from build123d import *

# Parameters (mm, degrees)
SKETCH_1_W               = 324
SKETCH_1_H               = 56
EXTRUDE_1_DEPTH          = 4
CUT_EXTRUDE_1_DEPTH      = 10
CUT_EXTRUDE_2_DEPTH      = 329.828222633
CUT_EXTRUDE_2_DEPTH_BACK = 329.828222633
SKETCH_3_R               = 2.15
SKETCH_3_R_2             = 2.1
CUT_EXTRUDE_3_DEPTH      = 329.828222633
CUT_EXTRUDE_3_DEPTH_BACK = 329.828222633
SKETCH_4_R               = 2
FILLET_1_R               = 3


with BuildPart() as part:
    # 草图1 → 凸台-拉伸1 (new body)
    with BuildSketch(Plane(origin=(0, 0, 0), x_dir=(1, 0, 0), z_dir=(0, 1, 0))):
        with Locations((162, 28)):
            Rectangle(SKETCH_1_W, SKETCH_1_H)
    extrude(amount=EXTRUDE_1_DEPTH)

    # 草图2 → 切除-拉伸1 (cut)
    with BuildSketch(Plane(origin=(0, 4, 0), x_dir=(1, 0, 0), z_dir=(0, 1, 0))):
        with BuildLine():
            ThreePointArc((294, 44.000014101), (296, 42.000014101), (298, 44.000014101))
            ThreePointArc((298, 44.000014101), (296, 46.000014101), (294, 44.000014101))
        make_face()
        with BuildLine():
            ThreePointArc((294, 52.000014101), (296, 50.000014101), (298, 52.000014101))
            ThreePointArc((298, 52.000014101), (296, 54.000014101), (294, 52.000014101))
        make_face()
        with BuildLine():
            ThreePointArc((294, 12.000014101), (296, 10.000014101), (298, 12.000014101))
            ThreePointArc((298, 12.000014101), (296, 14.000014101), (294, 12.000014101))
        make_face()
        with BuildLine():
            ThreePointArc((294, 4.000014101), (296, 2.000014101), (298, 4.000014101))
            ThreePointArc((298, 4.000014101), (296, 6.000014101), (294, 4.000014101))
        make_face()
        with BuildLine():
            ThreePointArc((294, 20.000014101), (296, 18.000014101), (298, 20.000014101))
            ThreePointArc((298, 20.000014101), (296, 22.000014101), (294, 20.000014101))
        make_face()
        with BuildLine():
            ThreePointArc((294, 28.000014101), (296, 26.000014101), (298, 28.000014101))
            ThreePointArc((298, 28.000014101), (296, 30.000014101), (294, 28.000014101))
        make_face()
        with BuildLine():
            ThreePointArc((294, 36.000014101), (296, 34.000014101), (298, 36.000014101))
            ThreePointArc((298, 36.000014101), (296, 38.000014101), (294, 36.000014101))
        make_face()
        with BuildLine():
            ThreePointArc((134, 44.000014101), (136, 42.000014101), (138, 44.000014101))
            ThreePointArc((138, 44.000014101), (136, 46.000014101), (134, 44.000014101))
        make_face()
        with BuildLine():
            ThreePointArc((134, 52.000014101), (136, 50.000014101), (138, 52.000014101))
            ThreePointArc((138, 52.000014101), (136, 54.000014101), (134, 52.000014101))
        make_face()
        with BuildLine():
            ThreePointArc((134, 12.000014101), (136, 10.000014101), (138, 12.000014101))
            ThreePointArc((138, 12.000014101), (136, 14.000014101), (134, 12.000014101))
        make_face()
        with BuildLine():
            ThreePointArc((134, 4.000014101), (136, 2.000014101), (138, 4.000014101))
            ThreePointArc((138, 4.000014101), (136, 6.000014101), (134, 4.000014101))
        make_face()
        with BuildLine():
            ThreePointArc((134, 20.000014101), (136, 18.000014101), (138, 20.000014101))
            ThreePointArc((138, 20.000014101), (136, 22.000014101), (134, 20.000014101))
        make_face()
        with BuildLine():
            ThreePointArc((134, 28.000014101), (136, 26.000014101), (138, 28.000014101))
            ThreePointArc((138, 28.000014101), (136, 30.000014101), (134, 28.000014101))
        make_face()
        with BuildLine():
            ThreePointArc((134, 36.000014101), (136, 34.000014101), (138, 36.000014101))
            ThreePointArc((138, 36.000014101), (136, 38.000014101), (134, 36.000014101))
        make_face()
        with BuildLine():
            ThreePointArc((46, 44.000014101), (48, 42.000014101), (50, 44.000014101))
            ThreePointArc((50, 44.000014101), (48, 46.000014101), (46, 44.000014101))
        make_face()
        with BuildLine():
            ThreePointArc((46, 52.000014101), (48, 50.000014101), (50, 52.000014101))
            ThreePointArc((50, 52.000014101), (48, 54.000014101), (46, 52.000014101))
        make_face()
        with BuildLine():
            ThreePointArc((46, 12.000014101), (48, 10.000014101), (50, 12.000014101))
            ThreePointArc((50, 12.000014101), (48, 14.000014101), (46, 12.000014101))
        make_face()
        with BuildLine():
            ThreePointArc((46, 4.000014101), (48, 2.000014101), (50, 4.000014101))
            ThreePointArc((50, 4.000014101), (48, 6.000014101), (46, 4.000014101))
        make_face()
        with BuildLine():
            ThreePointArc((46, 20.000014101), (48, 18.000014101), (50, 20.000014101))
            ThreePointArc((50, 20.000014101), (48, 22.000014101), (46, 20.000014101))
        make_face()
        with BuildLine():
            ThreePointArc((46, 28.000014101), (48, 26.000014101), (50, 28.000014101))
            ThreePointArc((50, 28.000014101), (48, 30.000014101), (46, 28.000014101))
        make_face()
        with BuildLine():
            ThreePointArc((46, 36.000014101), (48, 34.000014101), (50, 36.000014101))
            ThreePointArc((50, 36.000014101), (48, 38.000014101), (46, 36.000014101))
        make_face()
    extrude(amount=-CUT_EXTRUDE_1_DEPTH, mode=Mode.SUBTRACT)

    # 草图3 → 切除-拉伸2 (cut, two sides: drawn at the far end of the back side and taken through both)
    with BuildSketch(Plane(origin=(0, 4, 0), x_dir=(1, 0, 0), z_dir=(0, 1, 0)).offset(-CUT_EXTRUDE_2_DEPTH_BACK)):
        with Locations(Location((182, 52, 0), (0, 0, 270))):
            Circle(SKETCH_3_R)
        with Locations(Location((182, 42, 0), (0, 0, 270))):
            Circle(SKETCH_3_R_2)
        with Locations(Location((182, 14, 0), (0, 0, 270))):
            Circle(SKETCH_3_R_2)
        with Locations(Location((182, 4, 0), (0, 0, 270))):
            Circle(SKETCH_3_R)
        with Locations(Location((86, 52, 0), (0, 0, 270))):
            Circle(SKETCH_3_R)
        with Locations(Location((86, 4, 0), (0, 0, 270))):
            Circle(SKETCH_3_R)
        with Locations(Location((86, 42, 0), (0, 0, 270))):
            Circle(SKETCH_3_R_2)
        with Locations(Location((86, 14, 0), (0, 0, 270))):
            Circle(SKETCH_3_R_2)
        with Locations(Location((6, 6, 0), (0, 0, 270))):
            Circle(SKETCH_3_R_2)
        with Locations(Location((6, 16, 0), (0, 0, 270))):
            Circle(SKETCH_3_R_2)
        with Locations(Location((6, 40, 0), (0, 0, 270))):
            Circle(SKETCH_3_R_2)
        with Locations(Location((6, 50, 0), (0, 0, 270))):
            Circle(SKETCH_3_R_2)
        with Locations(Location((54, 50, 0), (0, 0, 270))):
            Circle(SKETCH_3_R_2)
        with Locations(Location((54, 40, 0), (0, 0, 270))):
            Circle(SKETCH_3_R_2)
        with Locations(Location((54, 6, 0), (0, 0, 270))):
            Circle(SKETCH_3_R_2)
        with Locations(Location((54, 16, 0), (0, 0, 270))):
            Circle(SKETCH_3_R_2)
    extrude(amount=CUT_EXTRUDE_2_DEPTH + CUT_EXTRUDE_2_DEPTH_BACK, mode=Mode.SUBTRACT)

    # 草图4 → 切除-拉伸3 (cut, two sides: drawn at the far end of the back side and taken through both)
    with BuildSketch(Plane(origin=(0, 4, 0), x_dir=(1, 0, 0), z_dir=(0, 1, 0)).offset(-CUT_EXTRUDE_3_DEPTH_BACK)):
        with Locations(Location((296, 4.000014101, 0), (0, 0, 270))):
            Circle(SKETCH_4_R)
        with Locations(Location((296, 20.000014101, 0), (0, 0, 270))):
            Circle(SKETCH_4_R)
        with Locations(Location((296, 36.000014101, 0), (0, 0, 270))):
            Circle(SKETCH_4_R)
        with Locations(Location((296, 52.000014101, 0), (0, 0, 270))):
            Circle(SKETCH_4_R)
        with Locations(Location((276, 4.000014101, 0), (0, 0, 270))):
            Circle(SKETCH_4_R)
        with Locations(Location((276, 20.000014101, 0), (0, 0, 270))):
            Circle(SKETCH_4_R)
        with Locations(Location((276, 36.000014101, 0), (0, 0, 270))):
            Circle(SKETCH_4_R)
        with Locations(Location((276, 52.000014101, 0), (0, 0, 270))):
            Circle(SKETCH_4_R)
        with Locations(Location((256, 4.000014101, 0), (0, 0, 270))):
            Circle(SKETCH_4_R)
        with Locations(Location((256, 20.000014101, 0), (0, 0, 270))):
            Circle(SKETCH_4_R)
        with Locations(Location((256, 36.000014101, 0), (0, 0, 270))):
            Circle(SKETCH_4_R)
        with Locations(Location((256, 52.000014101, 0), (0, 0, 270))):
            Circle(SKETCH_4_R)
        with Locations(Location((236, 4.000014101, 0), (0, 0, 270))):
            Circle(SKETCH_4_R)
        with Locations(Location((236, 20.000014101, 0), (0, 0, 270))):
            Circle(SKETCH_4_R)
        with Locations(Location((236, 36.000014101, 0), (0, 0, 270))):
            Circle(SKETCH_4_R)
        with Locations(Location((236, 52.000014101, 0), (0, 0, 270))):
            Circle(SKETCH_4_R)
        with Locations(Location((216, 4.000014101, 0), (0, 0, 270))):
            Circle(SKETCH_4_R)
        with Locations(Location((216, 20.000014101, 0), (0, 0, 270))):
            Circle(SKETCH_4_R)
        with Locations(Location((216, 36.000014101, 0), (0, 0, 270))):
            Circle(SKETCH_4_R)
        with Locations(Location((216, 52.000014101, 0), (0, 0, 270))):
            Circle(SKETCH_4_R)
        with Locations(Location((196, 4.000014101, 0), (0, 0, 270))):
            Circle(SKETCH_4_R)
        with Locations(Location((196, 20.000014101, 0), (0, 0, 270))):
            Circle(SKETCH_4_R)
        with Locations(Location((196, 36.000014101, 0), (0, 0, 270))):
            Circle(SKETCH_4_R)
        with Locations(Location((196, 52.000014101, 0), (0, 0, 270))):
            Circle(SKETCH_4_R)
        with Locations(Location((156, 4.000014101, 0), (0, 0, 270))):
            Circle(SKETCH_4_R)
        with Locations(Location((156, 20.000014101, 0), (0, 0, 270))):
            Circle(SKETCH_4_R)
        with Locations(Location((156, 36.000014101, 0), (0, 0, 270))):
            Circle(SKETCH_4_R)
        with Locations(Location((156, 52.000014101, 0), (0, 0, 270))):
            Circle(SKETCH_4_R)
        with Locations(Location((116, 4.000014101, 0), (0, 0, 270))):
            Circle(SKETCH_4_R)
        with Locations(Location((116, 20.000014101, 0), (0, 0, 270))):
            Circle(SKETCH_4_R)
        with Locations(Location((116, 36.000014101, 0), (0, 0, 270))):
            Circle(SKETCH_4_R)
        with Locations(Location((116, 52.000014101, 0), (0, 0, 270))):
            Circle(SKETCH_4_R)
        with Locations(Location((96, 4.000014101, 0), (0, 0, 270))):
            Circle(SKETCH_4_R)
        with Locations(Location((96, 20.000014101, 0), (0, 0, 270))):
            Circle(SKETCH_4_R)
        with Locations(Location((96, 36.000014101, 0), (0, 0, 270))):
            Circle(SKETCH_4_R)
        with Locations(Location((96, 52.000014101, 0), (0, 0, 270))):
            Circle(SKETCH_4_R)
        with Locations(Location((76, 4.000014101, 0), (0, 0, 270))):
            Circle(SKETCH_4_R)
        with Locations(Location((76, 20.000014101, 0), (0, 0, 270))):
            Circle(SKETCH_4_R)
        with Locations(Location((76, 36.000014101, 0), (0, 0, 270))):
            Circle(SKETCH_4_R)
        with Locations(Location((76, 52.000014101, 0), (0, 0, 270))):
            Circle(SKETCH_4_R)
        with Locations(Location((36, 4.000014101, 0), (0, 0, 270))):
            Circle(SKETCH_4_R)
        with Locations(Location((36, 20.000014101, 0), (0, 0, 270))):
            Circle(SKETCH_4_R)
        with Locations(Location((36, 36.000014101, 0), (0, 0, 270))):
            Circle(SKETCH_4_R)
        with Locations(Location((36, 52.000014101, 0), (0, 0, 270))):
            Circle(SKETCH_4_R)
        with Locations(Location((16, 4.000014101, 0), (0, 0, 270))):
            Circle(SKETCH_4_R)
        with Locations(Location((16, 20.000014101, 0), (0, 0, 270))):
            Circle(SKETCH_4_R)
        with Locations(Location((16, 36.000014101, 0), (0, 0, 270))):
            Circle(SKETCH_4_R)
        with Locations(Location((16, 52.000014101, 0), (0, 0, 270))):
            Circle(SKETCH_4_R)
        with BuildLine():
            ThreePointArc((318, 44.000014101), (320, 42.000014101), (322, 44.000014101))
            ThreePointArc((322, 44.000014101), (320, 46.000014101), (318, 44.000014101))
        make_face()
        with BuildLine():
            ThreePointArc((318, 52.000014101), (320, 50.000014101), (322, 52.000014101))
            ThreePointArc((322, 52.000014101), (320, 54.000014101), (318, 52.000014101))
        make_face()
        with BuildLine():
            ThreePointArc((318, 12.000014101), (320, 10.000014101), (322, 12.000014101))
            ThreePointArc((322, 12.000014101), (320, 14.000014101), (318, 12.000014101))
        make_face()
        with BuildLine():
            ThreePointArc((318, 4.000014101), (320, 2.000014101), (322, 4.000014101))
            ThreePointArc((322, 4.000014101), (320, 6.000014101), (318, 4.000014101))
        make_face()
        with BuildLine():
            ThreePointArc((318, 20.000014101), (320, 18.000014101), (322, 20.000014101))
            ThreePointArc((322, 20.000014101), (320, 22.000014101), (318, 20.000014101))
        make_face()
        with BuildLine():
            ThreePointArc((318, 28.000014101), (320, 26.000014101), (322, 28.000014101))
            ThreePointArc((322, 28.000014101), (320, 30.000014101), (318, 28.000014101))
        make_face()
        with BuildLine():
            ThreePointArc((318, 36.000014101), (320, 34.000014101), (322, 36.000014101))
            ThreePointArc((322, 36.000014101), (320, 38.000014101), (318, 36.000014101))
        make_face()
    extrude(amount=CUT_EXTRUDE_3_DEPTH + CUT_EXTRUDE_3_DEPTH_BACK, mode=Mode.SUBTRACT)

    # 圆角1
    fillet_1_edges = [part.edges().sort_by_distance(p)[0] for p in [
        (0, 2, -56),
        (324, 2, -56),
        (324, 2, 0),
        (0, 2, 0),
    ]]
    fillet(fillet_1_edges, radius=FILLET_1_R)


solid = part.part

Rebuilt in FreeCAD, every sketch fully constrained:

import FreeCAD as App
import Part
import Sketcher


def edges_at(feature, points):
    """Names of the edges that pass closest to the given points."""
    edges = feature.Shape.Edges
    near = lambda p: min(range(len(edges)), key=lambda i: edges[i].distToShape(Part.Vertex(*p))[0])
    return sorted({f"Edge{near(p) + 1}" for p in points})


def add_polygon(sketch, points):
    """Adds a closed chain of lines whose ends are joined by coincident constraints."""
    first, n = sketch.GeometryCount, len(points)
    for a, b in zip(points, points[1:] + points[:1]):
        sketch.addGeometry(Part.LineSegment(App.Vector(*a, 0), App.Vector(*b, 0)), False)
    for i in range(n):
        sketch.addConstraint(Sketcher.Constraint("Coincident", first + i, 2, first + (i + 1) % n, 1))

doc = App.newDocument("Part")
body = doc.addObject("PartDesign::Body", "Body")

sketch1 = body.newObject("Sketcher::SketchObject", "Sketch")
sketch1.AttachmentSupport = (doc.getObject("XZ_Plane"), [""])
sketch1.MapMode = "FlatFace"
add_polygon(sketch1, [(0, -56), (0, 0), (324, 0), (324, -56)])
sketch1.addConstraint(Sketcher.Constraint("Vertical", 0))
sketch1.addConstraint(Sketcher.Constraint("Horizontal", 1))
sketch1.addConstraint(Sketcher.Constraint("Vertical", 2))
sketch1.addConstraint(Sketcher.Constraint("Horizontal", 3))
sketch1.addConstraint(Sketcher.Constraint("Coincident", 0, 2, -1, 1))
sketch1.addConstraint(Sketcher.Constraint("DistanceX", 1, 1, 1, 2, 324.0))
sketch1.addConstraint(Sketcher.Constraint("DistanceY", 0, 1, 0, 2, 56.0))
pad1 = body.newObject("PartDesign::Pad", "Pad")
pad1.Profile = sketch1
pad1.Length = 4
pad1.Reversed = True

sketch2 = body.newObject("Sketcher::SketchObject", "Sketch001")
sketch2.AttachmentSupport = (doc.getObject("XZ_Plane"), [""])
sketch2.MapMode = "FlatFace"
sketch2.AttachmentOffset = App.Placement(App.Vector(0, 0, -4), App.Rotation())
sketch2.addGeometry(Part.Circle(App.Vector(296, -44.000014, 0), App.Vector(0, 0, 1), 2), False)
sketch2.addGeometry(Part.Circle(App.Vector(296, -52.000014, 0), App.Vector(0, 0, 1), 2), False)
sketch2.addGeometry(Part.Circle(App.Vector(296, -12.000014, 0), App.Vector(0, 0, 1), 2), False)
sketch2.addGeometry(Part.Circle(App.Vector(296, -4.000014, 0), App.Vector(0, 0, 1), 2), False)
sketch2.addGeometry(Part.Circle(App.Vector(296, -20.000014, 0), App.Vector(0, 0, 1), 2), False)
sketch2.addGeometry(Part.Circle(App.Vector(296, -28.000014, 0), App.Vector(0, 0, 1), 2), False)
sketch2.addGeometry(Part.Circle(App.Vector(296, -36.000014, 0), App.Vector(0, 0, 1), 2), False)
sketch2.addGeometry(Part.Circle(App.Vector(136, -44.000014, 0), App.Vector(0, 0, 1), 2), False)
sketch2.addGeometry(Part.Circle(App.Vector(136, -52.000014, 0), App.Vector(0, 0, 1), 2), False)
sketch2.addGeometry(Part.Circle(App.Vector(136, -12.000014, 0), App.Vector(0, 0, 1), 2), False)
sketch2.addGeometry(Part.Circle(App.Vector(136, -4.000014, 0), App.Vector(0, 0, 1), 2), False)
sketch2.addGeometry(Part.Circle(App.Vector(136, -20.000014, 0), App.Vector(0, 0, 1), 2), False)
sketch2.addGeometry(Part.Circle(App.Vector(136, -28.000014, 0), App.Vector(0, 0, 1), 2), False)
sketch2.addGeometry(Part.Circle(App.Vector(136, -36.000014, 0), App.Vector(0, 0, 1), 2), False)
sketch2.addGeometry(Part.Circle(App.Vector(48, -44.000014, 0), App.Vector(0, 0, 1), 2), False)
sketch2.addGeometry(Part.Circle(App.Vector(48, -52.000014, 0), App.Vector(0, 0, 1), 2), False)
sketch2.addGeometry(Part.Circle(App.Vector(48, -12.000014, 0), App.Vector(0, 0, 1), 2), False)
sketch2.addGeometry(Part.Circle(App.Vector(48, -4.000014, 0), App.Vector(0, 0, 1), 2), False)
sketch2.addGeometry(Part.Circle(App.Vector(48, -20.000014, 0), App.Vector(0, 0, 1), 2), False)
sketch2.addGeometry(Part.Circle(App.Vector(48, -28.000014, 0), App.Vector(0, 0, 1), 2), False)
sketch2.addGeometry(Part.Circle(App.Vector(48, -36.000014, 0), App.Vector(0, 0, 1), 2), False)
sketch2.addConstraint(Sketcher.Constraint("Equal", 0, 1))
sketch2.addConstraint(Sketcher.Constraint("Equal", 1, 2))
sketch2.addConstraint(Sketcher.Constraint("Equal", 2, 3))
sketch2.addConstraint(Sketcher.Constraint("Equal", 3, 4))
sketch2.addConstraint(Sketcher.Constraint("Equal", 4, 5))
sketch2.addConstraint(Sketcher.Constraint("Equal", 5, 6))
sketch2.addConstraint(Sketcher.Constraint("Equal", 6, 7))
sketch2.addConstraint(Sketcher.Constraint("Equal", 7, 8))
sketch2.addConstraint(Sketcher.Constraint("Equal", 8, 9))
sketch2.addConstraint(Sketcher.Constraint("Equal", 9, 10))
sketch2.addConstraint(Sketcher.Constraint("Equal", 10, 11))
sketch2.addConstraint(Sketcher.Constraint("Equal", 11, 12))
sketch2.addConstraint(Sketcher.Constraint("Equal", 12, 13))
sketch2.addConstraint(Sketcher.Constraint("Equal", 13, 14))
sketch2.addConstraint(Sketcher.Constraint("Equal", 14, 15))
sketch2.addConstraint(Sketcher.Constraint("Equal", 15, 16))
sketch2.addConstraint(Sketcher.Constraint("Equal", 16, 17))
sketch2.addConstraint(Sketcher.Constraint("Equal", 17, 18))
sketch2.addConstraint(Sketcher.Constraint("Equal", 18, 19))
sketch2.addConstraint(Sketcher.Constraint("Equal", 19, 20))
sketch2.addConstraint(Sketcher.Constraint("Horizontal", 0, 3, 7, 3))
sketch2.addConstraint(Sketcher.Constraint("Horizontal", 1, 3, 8, 3))
sketch2.addConstraint(Sketcher.Constraint("Horizontal", 2, 3, 9, 3))
sketch2.addConstraint(Sketcher.Constraint("Horizontal", 3, 3, 10, 3))
sketch2.addConstraint(Sketcher.Constraint("Horizontal", 4, 3, 11, 3))
sketch2.addConstraint(Sketcher.Constraint("Horizontal", 5, 3, 12, 3))
sketch2.addConstraint(Sketcher.Constraint("Horizontal", 6, 3, 13, 3))
sketch2.addConstraint(Sketcher.Constraint("Horizontal", 7, 3, 14, 3))
sketch2.addConstraint(Sketcher.Constraint("Horizontal", 8, 3, 15, 3))
sketch2.addConstraint(Sketcher.Constraint("Horizontal", 9, 3, 16, 3))
sketch2.addConstraint(Sketcher.Constraint("Horizontal", 10, 3, 17, 3))
sketch2.addConstraint(Sketcher.Constraint("Horizontal", 11, 3, 18, 3))
sketch2.addConstraint(Sketcher.Constraint("Horizontal", 12, 3, 19, 3))
sketch2.addConstraint(Sketcher.Constraint("Horizontal", 13, 3, 20, 3))
sketch2.addConstraint(Sketcher.Constraint("Vertical", 0, 3, 1, 3))
sketch2.addConstraint(Sketcher.Constraint("Vertical", 1, 3, 2, 3))
sketch2.addConstraint(Sketcher.Constraint("Vertical", 2, 3, 3, 3))
sketch2.addConstraint(Sketcher.Constraint("Vertical", 3, 3, 4, 3))
sketch2.addConstraint(Sketcher.Constraint("Vertical", 4, 3, 5, 3))
sketch2.addConstraint(Sketcher.Constraint("Vertical", 5, 3, 6, 3))
sketch2.addConstraint(Sketcher.Constraint("Vertical", 7, 3, 8, 3))
sketch2.addConstraint(Sketcher.Constraint("Vertical", 8, 3, 9, 3))
sketch2.addConstraint(Sketcher.Constraint("Vertical", 9, 3, 10, 3))
sketch2.addConstraint(Sketcher.Constraint("Vertical", 10, 3, 11, 3))
sketch2.addConstraint(Sketcher.Constraint("Vertical", 11, 3, 12, 3))
sketch2.addConstraint(Sketcher.Constraint("Vertical", 12, 3, 13, 3))
sketch2.addConstraint(Sketcher.Constraint("Vertical", 14, 3, 15, 3))
sketch2.addConstraint(Sketcher.Constraint("Vertical", 15, 3, 16, 3))
sketch2.addConstraint(Sketcher.Constraint("Vertical", 16, 3, 17, 3))
sketch2.addConstraint(Sketcher.Constraint("Vertical", 17, 3, 18, 3))
sketch2.addConstraint(Sketcher.Constraint("Vertical", 18, 3, 19, 3))
sketch2.addConstraint(Sketcher.Constraint("Vertical", 19, 3, 20, 3))
sketch2.addConstraint(Sketcher.Constraint("Diameter", 0, 4.0))
sketch2.addConstraint(Sketcher.Constraint("DistanceX", -1, 1, 0, 3, 296.0))
sketch2.addConstraint(Sketcher.Constraint("DistanceX", -1, 1, 7, 3, 136.0))
sketch2.addConstraint(Sketcher.Constraint("DistanceX", -1, 1, 14, 3, 48.0))
sketch2.addConstraint(Sketcher.Constraint("DistanceY", 1, 3, 0, 3, 8.0))
sketch2.addConstraint(Sketcher.Constraint("DistanceY", 0, 3, 2, 3, 32.0))
sketch2.addConstraint(Sketcher.Constraint("DistanceY", 2, 3, 3, 3, 8.0))
sketch2.addConstraint(Sketcher.Constraint("DistanceY", 4, 3, 2, 3, 8.0))
sketch2.addConstraint(Sketcher.Constraint("DistanceY", 5, 3, 4, 3, 8.0))
sketch2.addConstraint(Sketcher.Constraint("DistanceY", 6, 3, 5, 3, 8.0))
sketch2.addConstraint(Sketcher.Constraint("DistanceY", 0, 3, -1, 1, 44.000014))
pocket1 = body.newObject("PartDesign::Pocket", "Pocket")
pocket1.Profile = sketch2
pocket1.Length = 10
pocket1.Reversed = True

sketch3 = body.newObject("Sketcher::SketchObject", "Sketch002")
sketch3.AttachmentSupport = (doc.getObject("XZ_Plane"), [""])
sketch3.MapMode = "FlatFace"
sketch3.AttachmentOffset = App.Placement(App.Vector(0, 0, -4), App.Rotation())
sketch3.addGeometry(Part.Circle(App.Vector(182, -52, 0), App.Vector(0, 0, 1), 2.15), False)
sketch3.addGeometry(Part.Circle(App.Vector(182, -42, 0), App.Vector(0, 0, 1), 2.1), False)
sketch3.addGeometry(Part.Circle(App.Vector(182, -14, 0), App.Vector(0, 0, 1), 2.1), False)
sketch3.addGeometry(Part.Circle(App.Vector(182, -4, 0), App.Vector(0, 0, 1), 2.15), False)
sketch3.addGeometry(Part.Circle(App.Vector(86, -52, 0), App.Vector(0, 0, 1), 2.15), False)
sketch3.addGeometry(Part.Circle(App.Vector(86, -4, 0), App.Vector(0, 0, 1), 2.15), False)
sketch3.addGeometry(Part.Circle(App.Vector(86, -42, 0), App.Vector(0, 0, 1), 2.1), False)
sketch3.addGeometry(Part.Circle(App.Vector(86, -14, 0), App.Vector(0, 0, 1), 2.1), False)
sketch3.addGeometry(Part.Circle(App.Vector(6, -6, 0), App.Vector(0, 0, 1), 2.1), False)
sketch3.addGeometry(Part.Circle(App.Vector(6, -16, 0), App.Vector(0, 0, 1), 2.1), False)
sketch3.addGeometry(Part.Circle(App.Vector(6, -40, 0), App.Vector(0, 0, 1), 2.1), False)
sketch3.addGeometry(Part.Circle(App.Vector(6, -50, 0), App.Vector(0, 0, 1), 2.1), False)
sketch3.addGeometry(Part.Circle(App.Vector(54, -50, 0), App.Vector(0, 0, 1), 2.1), False)
sketch3.addGeometry(Part.Circle(App.Vector(54, -40, 0), App.Vector(0, 0, 1), 2.1), False)
sketch3.addGeometry(Part.Circle(App.Vector(54, -6, 0), App.Vector(0, 0, 1), 2.1), False)
sketch3.addGeometry(Part.Circle(App.Vector(54, -16, 0), App.Vector(0, 0, 1), 2.1), False)
sketch3.addConstraint(Sketcher.Constraint("Equal", 1, 2))
sketch3.addConstraint(Sketcher.Constraint("Equal", 0, 3))
sketch3.addConstraint(Sketcher.Constraint("Equal", 3, 4))
sketch3.addConstraint(Sketcher.Constraint("Equal", 4, 5))
sketch3.addConstraint(Sketcher.Constraint("Equal", 2, 6))
sketch3.addConstraint(Sketcher.Constraint("Equal", 6, 7))
sketch3.addConstraint(Sketcher.Constraint("Equal", 7, 8))
sketch3.addConstraint(Sketcher.Constraint("Equal", 8, 9))
sketch3.addConstraint(Sketcher.Constraint("Equal", 9, 10))
sketch3.addConstraint(Sketcher.Constraint("Equal", 10, 11))
sketch3.addConstraint(Sketcher.Constraint("Equal", 11, 12))
sketch3.addConstraint(Sketcher.Constraint("Equal", 12, 13))
sketch3.addConstraint(Sketcher.Constraint("Equal", 13, 14))
sketch3.addConstraint(Sketcher.Constraint("Equal", 14, 15))
sketch3.addConstraint(Sketcher.Constraint("Horizontal", 0, 3, 4, 3))
sketch3.addConstraint(Sketcher.Constraint("Horizontal", 3, 3, 5, 3))
sketch3.addConstraint(Sketcher.Constraint("Horizontal", 1, 3, 6, 3))
sketch3.addConstraint(Sketcher.Constraint("Horizontal", 2, 3, 7, 3))
sketch3.addConstraint(Sketcher.Constraint("Horizontal", 11, 3, 12, 3))
sketch3.addConstraint(Sketcher.Constraint("Horizontal", 10, 3, 13, 3))
sketch3.addConstraint(Sketcher.Constraint("Horizontal", 8, 3, 14, 3))
sketch3.addConstraint(Sketcher.Constraint("Horizontal", 9, 3, 15, 3))
sketch3.addConstraint(Sketcher.Constraint("Vertical", 0, 3, 1, 3))
sketch3.addConstraint(Sketcher.Constraint("Vertical", 1, 3, 2, 3))
sketch3.addConstraint(Sketcher.Constraint("Vertical", 2, 3, 3, 3))
sketch3.addConstraint(Sketcher.Constraint("Vertical", 4, 3, 5, 3))
sketch3.addConstraint(Sketcher.Constraint("Vertical", 5, 3, 6, 3))
sketch3.addConstraint(Sketcher.Constraint("Vertical", 6, 3, 7, 3))
sketch3.addConstraint(Sketcher.Constraint("Vertical", 8, 3, 9, 3))
sketch3.addConstraint(Sketcher.Constraint("Vertical", 9, 3, 10, 3))
sketch3.addConstraint(Sketcher.Constraint("Vertical", 10, 3, 11, 3))
sketch3.addConstraint(Sketcher.Constraint("Vertical", 12, 3, 13, 3))
sketch3.addConstraint(Sketcher.Constraint("Vertical", 13, 3, 14, 3))
sketch3.addConstraint(Sketcher.Constraint("Vertical", 14, 3, 15, 3))
sketch3.addConstraint(Sketcher.Constraint("Diameter", 0, 4.3))
sketch3.addConstraint(Sketcher.Constraint("Diameter", 1, 4.2))
sketch3.addConstraint(Sketcher.Constraint("DistanceX", -1, 1, 0, 3, 182.0))
sketch3.addConstraint(Sketcher.Constraint("DistanceY", 0, 3, -1, 1, 52.0))
sketch3.addConstraint(Sketcher.Constraint("DistanceY", 1, 3, -1, 1, 42.0))
sketch3.addConstraint(Sketcher.Constraint("DistanceY", 2, 3, -1, 1, 14.0))
sketch3.addConstraint(Sketcher.Constraint("DistanceY", 3, 3, -1, 1, 4.0))
sketch3.addConstraint(Sketcher.Constraint("DistanceX", -1, 1, 4, 3, 86.0))
sketch3.addConstraint(Sketcher.Constraint("DistanceX", -1, 1, 8, 3, 6.0))
sketch3.addConstraint(Sketcher.Constraint("DistanceY", 8, 3, -1, 1, 6.0))
sketch3.addConstraint(Sketcher.Constraint("DistanceY", 9, 3, -1, 1, 16.0))
sketch3.addConstraint(Sketcher.Constraint("DistanceY", 10, 3, -1, 1, 40.0))
sketch3.addConstraint(Sketcher.Constraint("DistanceY", 11, 3, -1, 1, 50.0))
sketch3.addConstraint(Sketcher.Constraint("DistanceX", -1, 1, 12, 3, 54.0))
pocket2 = body.newObject("PartDesign::Pocket", "Pocket001")
pocket2.Profile = sketch3
pocket2.Type = "ThroughAll"
pocket2.Midplane = True

sketch4 = body.newObject("Sketcher::SketchObject", "Sketch003")
sketch4.AttachmentSupport = (doc.getObject("XZ_Plane"), [""])
sketch4.MapMode = "FlatFace"
sketch4.AttachmentOffset = App.Placement(App.Vector(0, 0, -4), App.Rotation())
sketch4.addGeometry(Part.Circle(App.Vector(296, -4.000014, 0), App.Vector(0, 0, 1), 2), False)
sketch4.addGeometry(Part.Circle(App.Vector(296, -20.000014, 0), App.Vector(0, 0, 1), 2), False)
sketch4.addGeometry(Part.Circle(App.Vector(296, -36.000014, 0), App.Vector(0, 0, 1), 2), False)
sketch4.addGeometry(Part.Circle(App.Vector(296, -52.000014, 0), App.Vector(0, 0, 1), 2), False)
sketch4.addGeometry(Part.Circle(App.Vector(276, -4.000014, 0), App.Vector(0, 0, 1), 2), False)
sketch4.addGeometry(Part.Circle(App.Vector(276, -20.000014, 0), App.Vector(0, 0, 1), 2), False)
sketch4.addGeometry(Part.Circle(App.Vector(276, -36.000014, 0), App.Vector(0, 0, 1), 2), False)
sketch4.addGeometry(Part.Circle(App.Vector(276, -52.000014, 0), App.Vector(0, 0, 1), 2), False)
sketch4.addGeometry(Part.Circle(App.Vector(256, -4.000014, 0), App.Vector(0, 0, 1), 2), False)
sketch4.addGeometry(Part.Circle(App.Vector(256, -20.000014, 0), App.Vector(0, 0, 1), 2), False)
sketch4.addGeometry(Part.Circle(App.Vector(256, -36.000014, 0), App.Vector(0, 0, 1), 2), False)
sketch4.addGeometry(Part.Circle(App.Vector(256, -52.000014, 0), App.Vector(0, 0, 1), 2), False)
sketch4.addGeometry(Part.Circle(App.Vector(236, -4.000014, 0), App.Vector(0, 0, 1), 2), False)
sketch4.addGeometry(Part.Circle(App.Vector(236, -20.000014, 0), App.Vector(0, 0, 1), 2), False)
sketch4.addGeometry(Part.Circle(App.Vector(236, -36.000014, 0), App.Vector(0, 0, 1), 2), False)
sketch4.addGeometry(Part.Circle(App.Vector(236, -52.000014, 0), App.Vector(0, 0, 1), 2), False)
sketch4.addGeometry(Part.Circle(App.Vector(216, -4.000014, 0), App.Vector(0, 0, 1), 2), False)
sketch4.addGeometry(Part.Circle(App.Vector(216, -20.000014, 0), App.Vector(0, 0, 1), 2), False)
sketch4.addGeometry(Part.Circle(App.Vector(216, -36.000014, 0), App.Vector(0, 0, 1), 2), False)
sketch4.addGeometry(Part.Circle(App.Vector(216, -52.000014, 0), App.Vector(0, 0, 1), 2), False)
sketch4.addGeometry(Part.Circle(App.Vector(196, -4.000014, 0), App.Vector(0, 0, 1), 2), False)
sketch4.addGeometry(Part.Circle(App.Vector(196, -20.000014, 0), App.Vector(0, 0, 1), 2), False)
sketch4.addGeometry(Part.Circle(App.Vector(196, -36.000014, 0), App.Vector(0, 0, 1), 2), False)
sketch4.addGeometry(Part.Circle(App.Vector(196, -52.000014, 0), App.Vector(0, 0, 1), 2), False)
sketch4.addGeometry(Part.Circle(App.Vector(156, -4.000014, 0), App.Vector(0, 0, 1), 2), False)
sketch4.addGeometry(Part.Circle(App.Vector(156, -20.000014, 0), App.Vector(0, 0, 1), 2), False)
sketch4.addGeometry(Part.Circle(App.Vector(156, -36.000014, 0), App.Vector(0, 0, 1), 2), False)
sketch4.addGeometry(Part.Circle(App.Vector(156, -52.000014, 0), App.Vector(0, 0, 1), 2), False)
sketch4.addGeometry(Part.Circle(App.Vector(116, -4.000014, 0), App.Vector(0, 0, 1), 2), False)
sketch4.addGeometry(Part.Circle(App.Vector(116, -20.000014, 0), App.Vector(0, 0, 1), 2), False)
sketch4.addGeometry(Part.Circle(App.Vector(116, -36.000014, 0), App.Vector(0, 0, 1), 2), False)
sketch4.addGeometry(Part.Circle(App.Vector(116, -52.000014, 0), App.Vector(0, 0, 1), 2), False)
sketch4.addGeometry(Part.Circle(App.Vector(96, -4.000014, 0), App.Vector(0, 0, 1), 2), False)
sketch4.addGeometry(Part.Circle(App.Vector(96, -20.000014, 0), App.Vector(0, 0, 1), 2), False)
sketch4.addGeometry(Part.Circle(App.Vector(96, -36.000014, 0), App.Vector(0, 0, 1), 2), False)
sketch4.addGeometry(Part.Circle(App.Vector(96, -52.000014, 0), App.Vector(0, 0, 1), 2), False)
sketch4.addGeometry(Part.Circle(App.Vector(76, -4.000014, 0), App.Vector(0, 0, 1), 2), False)
sketch4.addGeometry(Part.Circle(App.Vector(76, -20.000014, 0), App.Vector(0, 0, 1), 2), False)
sketch4.addGeometry(Part.Circle(App.Vector(76, -36.000014, 0), App.Vector(0, 0, 1), 2), False)
sketch4.addGeometry(Part.Circle(App.Vector(76, -52.000014, 0), App.Vector(0, 0, 1), 2), False)
sketch4.addGeometry(Part.Circle(App.Vector(36, -4.000014, 0), App.Vector(0, 0, 1), 2), False)
sketch4.addGeometry(Part.Circle(App.Vector(36, -20.000014, 0), App.Vector(0, 0, 1), 2), False)
sketch4.addGeometry(Part.Circle(App.Vector(36, -36.000014, 0), App.Vector(0, 0, 1), 2), False)
sketch4.addGeometry(Part.Circle(App.Vector(36, -52.000014, 0), App.Vector(0, 0, 1), 2), False)
sketch4.addGeometry(Part.Circle(App.Vector(16, -4.000014, 0), App.Vector(0, 0, 1), 2), False)
sketch4.addGeometry(Part.Circle(App.Vector(16, -20.000014, 0), App.Vector(0, 0, 1), 2), False)
sketch4.addGeometry(Part.Circle(App.Vector(16, -36.000014, 0), App.Vector(0, 0, 1), 2), False)
sketch4.addGeometry(Part.Circle(App.Vector(16, -52.000014, 0), App.Vector(0, 0, 1), 2), False)
sketch4.addGeometry(Part.Circle(App.Vector(320, -44.000014, 0), App.Vector(0, 0, 1), 2), False)
sketch4.addGeometry(Part.Circle(App.Vector(320, -52.000014, 0), App.Vector(0, 0, 1), 2), False)
sketch4.addGeometry(Part.Circle(App.Vector(320, -12.000014, 0), App.Vector(0, 0, 1), 2), False)
sketch4.addGeometry(Part.Circle(App.Vector(320, -4.000014, 0), App.Vector(0, 0, 1), 2), False)
sketch4.addGeometry(Part.Circle(App.Vector(320, -20.000014, 0), App.Vector(0, 0, 1), 2), False)
sketch4.addGeometry(Part.Circle(App.Vector(320, -28.000014, 0), App.Vector(0, 0, 1), 2), False)
sketch4.addGeometry(Part.Circle(App.Vector(320, -36.000014, 0), App.Vector(0, 0, 1), 2), False)
sketch4.addConstraint(Sketcher.Constraint("Equal", 0, 1))
sketch4.addConstraint(Sketcher.Constraint("Equal", 1, 2))
sketch4.addConstraint(Sketcher.Constraint("Equal", 2, 3))
sketch4.addConstraint(Sketcher.Constraint("Equal", 3, 4))
sketch4.addConstraint(Sketcher.Constraint("Equal", 4, 5))
sketch4.addConstraint(Sketcher.Constraint("Equal", 5, 6))
sketch4.addConstraint(Sketcher.Constraint("Equal", 6, 7))
sketch4.addConstraint(Sketcher.Constraint("Equal", 7, 8))
sketch4.addConstraint(Sketcher.Constraint("Equal", 8, 9))
sketch4.addConstraint(Sketcher.Constraint("Equal", 9, 10))
sketch4.addConstraint(Sketcher.Constraint("Equal", 10, 11))
sketch4.addConstraint(Sketcher.Constraint("Equal", 11, 12))
sketch4.addConstraint(Sketcher.Constraint("Equal", 12, 13))
sketch4.addConstraint(Sketcher.Constraint("Equal", 13, 14))
sketch4.addConstraint(Sketcher.Constraint("Equal", 14, 15))
sketch4.addConstraint(Sketcher.Constraint("Equal", 15, 16))
sketch4.addConstraint(Sketcher.Constraint("Equal", 16, 17))
sketch4.addConstraint(Sketcher.Constraint("Equal", 17, 18))
sketch4.addConstraint(Sketcher.Constraint("Equal", 18, 19))
sketch4.addConstraint(Sketcher.Constraint("Equal", 19, 20))
sketch4.addConstraint(Sketcher.Constraint("Equal", 20, 21))
sketch4.addConstraint(Sketcher.Constraint("Equal", 21, 22))
sketch4.addConstraint(Sketcher.Constraint("Equal", 22, 23))
sketch4.addConstraint(Sketcher.Constraint("Equal", 23, 24))
sketch4.addConstraint(Sketcher.Constraint("Equal", 24, 25))
sketch4.addConstraint(Sketcher.Constraint("Equal", 25, 26))
sketch4.addConstraint(Sketcher.Constraint("Equal", 26, 27))
sketch4.addConstraint(Sketcher.Constraint("Equal", 27, 28))
sketch4.addConstraint(Sketcher.Constraint("Equal", 28, 29))
sketch4.addConstraint(Sketcher.Constraint("Equal", 29, 30))
sketch4.addConstraint(Sketcher.Constraint("Equal", 30, 31))
sketch4.addConstraint(Sketcher.Constraint("Equal", 31, 32))
sketch4.addConstraint(Sketcher.Constraint("Equal", 32, 33))
sketch4.addConstraint(Sketcher.Constraint("Equal", 33, 34))
sketch4.addConstraint(Sketcher.Constraint("Equal", 34, 35))
sketch4.addConstraint(Sketcher.Constraint("Equal", 35, 36))
sketch4.addConstraint(Sketcher.Constraint("Equal", 36, 37))
sketch4.addConstraint(Sketcher.Constraint("Equal", 37, 38))
sketch4.addConstraint(Sketcher.Constraint("Equal", 38, 39))
sketch4.addConstraint(Sketcher.Constraint("Equal", 39, 40))
sketch4.addConstraint(Sketcher.Constraint("Equal", 40, 41))
sketch4.addConstraint(Sketcher.Constraint("Equal", 41, 42))
sketch4.addConstraint(Sketcher.Constraint("Equal", 42, 43))
sketch4.addConstraint(Sketcher.Constraint("Equal", 43, 44))
sketch4.addConstraint(Sketcher.Constraint("Equal", 44, 45))
sketch4.addConstraint(Sketcher.Constraint("Equal", 45, 46))
sketch4.addConstraint(Sketcher.Constraint("Equal", 46, 47))
sketch4.addConstraint(Sketcher.Constraint("Equal", 47, 48))
sketch4.addConstraint(Sketcher.Constraint("Equal", 48, 49))
sketch4.addConstraint(Sketcher.Constraint("Equal", 49, 50))
sketch4.addConstraint(Sketcher.Constraint("Equal", 50, 51))
sketch4.addConstraint(Sketcher.Constraint("Equal", 51, 52))
sketch4.addConstraint(Sketcher.Constraint("Equal", 52, 53))
sketch4.addConstraint(Sketcher.Constraint("Equal", 53, 54))
sketch4.addConstraint(Sketcher.Constraint("Horizontal", 0, 3, 4, 3))
sketch4.addConstraint(Sketcher.Constraint("Horizontal", 1, 3, 5, 3))
sketch4.addConstraint(Sketcher.Constraint("Horizontal", 2, 3, 6, 3))
sketch4.addConstraint(Sketcher.Constraint("Horizontal", 3, 3, 7, 3))
sketch4.addConstraint(Sketcher.Constraint("Horizontal", 4, 3, 8, 3))
sketch4.addConstraint(Sketcher.Constraint("Horizontal", 5, 3, 9, 3))
sketch4.addConstraint(Sketcher.Constraint("Horizontal", 6, 3, 10, 3))
sketch4.addConstraint(Sketcher.Constraint("Horizontal", 7, 3, 11, 3))
sketch4.addConstraint(Sketcher.Constraint("Horizontal", 8, 3, 12, 3))
sketch4.addConstraint(Sketcher.Constraint("Horizontal", 9, 3, 13, 3))
sketch4.addConstraint(Sketcher.Constraint("Horizontal", 10, 3, 14, 3))
sketch4.addConstraint(Sketcher.Constraint("Horizontal", 11, 3, 15, 3))
sketch4.addConstraint(Sketcher.Constraint("Horizontal", 12, 3, 16, 3))
sketch4.addConstraint(Sketcher.Constraint("Horizontal", 13, 3, 17, 3))
sketch4.addConstraint(Sketcher.Constraint("Horizontal", 14, 3, 18, 3))
sketch4.addConstraint(Sketcher.Constraint("Horizontal", 15, 3, 19, 3))
sketch4.addConstraint(Sketcher.Constraint("Horizontal", 16, 3, 20, 3))
sketch4.addConstraint(Sketcher.Constraint("Horizontal", 17, 3, 21, 3))
sketch4.addConstraint(Sketcher.Constraint("Horizontal", 18, 3, 22, 3))
sketch4.addConstraint(Sketcher.Constraint("Horizontal", 19, 3, 23, 3))
sketch4.addConstraint(Sketcher.Constraint("Horizontal", 20, 3, 24, 3))
sketch4.addConstraint(Sketcher.Constraint("Horizontal", 21, 3, 25, 3))
sketch4.addConstraint(Sketcher.Constraint("Horizontal", 22, 3, 26, 3))
sketch4.addConstraint(Sketcher.Constraint("Horizontal", 23, 3, 27, 3))
sketch4.addConstraint(Sketcher.Constraint("Horizontal", 24, 3, 28, 3))
sketch4.addConstraint(Sketcher.Constraint("Horizontal", 25, 3, 29, 3))
sketch4.addConstraint(Sketcher.Constraint("Horizontal", 26, 3, 30, 3))
sketch4.addConstraint(Sketcher.Constraint("Horizontal", 27, 3, 31, 3))
sketch4.addConstraint(Sketcher.Constraint("Horizontal", 28, 3, 32, 3))
sketch4.addConstraint(Sketcher.Constraint("Horizontal", 29, 3, 33, 3))
sketch4.addConstraint(Sketcher.Constraint("Horizontal", 30, 3, 34, 3))
sketch4.addConstraint(Sketcher.Constraint("Horizontal", 31, 3, 35, 3))
sketch4.addConstraint(Sketcher.Constraint("Horizontal", 32, 3, 36, 3))
sketch4.addConstraint(Sketcher.Constraint("Horizontal", 33, 3, 37, 3))
sketch4.addConstraint(Sketcher.Constraint("Horizontal", 34, 3, 38, 3))
sketch4.addConstraint(Sketcher.Constraint("Horizontal", 35, 3, 39, 3))
sketch4.addConstraint(Sketcher.Constraint("Horizontal", 36, 3, 40, 3))
sketch4.addConstraint(Sketcher.Constraint("Horizontal", 37, 3, 41, 3))
sketch4.addConstraint(Sketcher.Constraint("Horizontal", 38, 3, 42, 3))
sketch4.addConstraint(Sketcher.Constraint("Horizontal", 39, 3, 43, 3))
sketch4.addConstraint(Sketcher.Constraint("Horizontal", 40, 3, 44, 3))
sketch4.addConstraint(Sketcher.Constraint("Horizontal", 41, 3, 45, 3))
sketch4.addConstraint(Sketcher.Constraint("Horizontal", 42, 3, 46, 3))
sketch4.addConstraint(Sketcher.Constraint("Horizontal", 43, 3, 47, 3))
sketch4.addConstraint(Sketcher.Constraint("Horizontal", 47, 3, 49, 3))
sketch4.addConstraint(Sketcher.Constraint("Horizontal", 44, 3, 51, 3))
sketch4.addConstraint(Sketcher.Constraint("Horizontal", 45, 3, 52, 3))
sketch4.addConstraint(Sketcher.Constraint("Horizontal", 46, 3, 54, 3))
sketch4.addConstraint(Sketcher.Constraint("Vertical", 0, 3, 1, 3))
sketch4.addConstraint(Sketcher.Constraint("Vertical", 1, 3, 2, 3))
sketch4.addConstraint(Sketcher.Constraint("Vertical", 2, 3, 3, 3))
sketch4.addConstraint(Sketcher.Constraint("Vertical", 4, 3, 5, 3))
sketch4.addConstraint(Sketcher.Constraint("Vertical", 5, 3, 6, 3))
sketch4.addConstraint(Sketcher.Constraint("Vertical", 6, 3, 7, 3))
sketch4.addConstraint(Sketcher.Constraint("Vertical", 8, 3, 9, 3))
sketch4.addConstraint(Sketcher.Constraint("Vertical", 9, 3, 10, 3))
sketch4.addConstraint(Sketcher.Constraint("Vertical", 10, 3, 11, 3))
sketch4.addConstraint(Sketcher.Constraint("Vertical", 12, 3, 13, 3))
sketch4.addConstraint(Sketcher.Constraint("Vertical", 13, 3, 14, 3))
sketch4.addConstraint(Sketcher.Constraint("Vertical", 14, 3, 15, 3))
sketch4.addConstraint(Sketcher.Constraint("Vertical", 16, 3, 17, 3))
sketch4.addConstraint(Sketcher.Constraint("Vertical", 17, 3, 18, 3))
sketch4.addConstraint(Sketcher.Constraint("Vertical", 18, 3, 19, 3))
sketch4.addConstraint(Sketcher.Constraint("Vertical", 20, 3, 21, 3))
sketch4.addConstraint(Sketcher.Constraint("Vertical", 21, 3, 22, 3))
sketch4.addConstraint(Sketcher.Constraint("Vertical", 22, 3, 23, 3))
sketch4.addConstraint(Sketcher.Constraint("Vertical", 24, 3, 25, 3))
sketch4.addConstraint(Sketcher.Constraint("Vertical", 25, 3, 26, 3))
sketch4.addConstraint(Sketcher.Constraint("Vertical", 26, 3, 27, 3))
sketch4.addConstraint(Sketcher.Constraint("Vertical", 28, 3, 29, 3))
sketch4.addConstraint(Sketcher.Constraint("Vertical", 29, 3, 30, 3))
sketch4.addConstraint(Sketcher.Constraint("Vertical", 30, 3, 31, 3))
sketch4.addConstraint(Sketcher.Constraint("Vertical", 32, 3, 33, 3))
sketch4.addConstraint(Sketcher.Constraint("Vertical", 33, 3, 34, 3))
sketch4.addConstraint(Sketcher.Constraint("Vertical", 34, 3, 35, 3))
sketch4.addConstraint(Sketcher.Constraint("Vertical", 36, 3, 37, 3))
sketch4.addConstraint(Sketcher.Constraint("Vertical", 37, 3, 38, 3))
sketch4.addConstraint(Sketcher.Constraint("Vertical", 38, 3, 39, 3))
sketch4.addConstraint(Sketcher.Constraint("Vertical", 40, 3, 41, 3))
sketch4.addConstraint(Sketcher.Constraint("Vertical", 41, 3, 42, 3))
sketch4.addConstraint(Sketcher.Constraint("Vertical", 42, 3, 43, 3))
sketch4.addConstraint(Sketcher.Constraint("Vertical", 44, 3, 45, 3))
sketch4.addConstraint(Sketcher.Constraint("Vertical", 45, 3, 46, 3))
sketch4.addConstraint(Sketcher.Constraint("Vertical", 46, 3, 47, 3))
sketch4.addConstraint(Sketcher.Constraint("Vertical", 48, 3, 49, 3))
sketch4.addConstraint(Sketcher.Constraint("Vertical", 49, 3, 50, 3))
sketch4.addConstraint(Sketcher.Constraint("Vertical", 50, 3, 51, 3))
sketch4.addConstraint(Sketcher.Constraint("Vertical", 51, 3, 52, 3))
sketch4.addConstraint(Sketcher.Constraint("Vertical", 52, 3, 53, 3))
sketch4.addConstraint(Sketcher.Constraint("Vertical", 53, 3, 54, 3))
sketch4.addConstraint(Sketcher.Constraint("Diameter", 0, 4.0))
sketch4.addConstraint(Sketcher.Constraint("DistanceX", -1, 1, 0, 3, 296.0))
sketch4.addConstraint(Sketcher.Constraint("DistanceX", -1, 1, 4, 3, 276.0))
sketch4.addConstraint(Sketcher.Constraint("DistanceX", -1, 1, 8, 3, 256.0))
sketch4.addConstraint(Sketcher.Constraint("DistanceX", -1, 1, 12, 3, 236.0))
sketch4.addConstraint(Sketcher.Constraint("DistanceX", -1, 1, 16, 3, 216.0))
sketch4.addConstraint(Sketcher.Constraint("DistanceX", -1, 1, 20, 3, 196.0))
sketch4.addConstraint(Sketcher.Constraint("DistanceX", -1, 1, 24, 3, 156.0))
sketch4.addConstraint(Sketcher.Constraint("DistanceX", -1, 1, 28, 3, 116.0))
sketch4.addConstraint(Sketcher.Constraint("DistanceX", -1, 1, 32, 3, 96.0))
sketch4.addConstraint(Sketcher.Constraint("DistanceX", -1, 1, 36, 3, 76.0))
sketch4.addConstraint(Sketcher.Constraint("DistanceX", -1, 1, 40, 3, 36.0))
sketch4.addConstraint(Sketcher.Constraint("DistanceX", -1, 1, 44, 3, 16.0))
sketch4.addConstraint(Sketcher.Constraint("DistanceX", -1, 1, 48, 3, 320.0))
sketch4.addConstraint(Sketcher.Constraint("DistanceY", 1, 3, 0, 3, 16.0))
sketch4.addConstraint(Sketcher.Constraint("DistanceY", 2, 3, 1, 3, 16.0))
sketch4.addConstraint(Sketcher.Constraint("DistanceY", 3, 3, 2, 3, 16.0))
sketch4.addConstraint(Sketcher.Constraint("DistanceY", 48, 3, 2, 3, 8.0))
sketch4.addConstraint(Sketcher.Constraint("DistanceY", 50, 3, 0, 3, 8.0))
sketch4.addConstraint(Sketcher.Constraint("DistanceY", 53, 3, 52, 3, 8.0))
sketch4.addConstraint(Sketcher.Constraint("DistanceY", 0, 3, -1, 1, 4.000014))
pocket3 = body.newObject("PartDesign::Pocket", "Pocket002")
pocket3.Profile = sketch4
pocket3.Type = "ThroughAll"
pocket3.Midplane = True
doc.recompute()

fillet = body.newObject("PartDesign::Fillet", "Fillet")
fillet.Base = (pocket3, edges_at(pocket3, [
    (0, 2, -56),
    (324, 2, -56),
    (324, 2, 0),
    (0, 2, 0),
]))
fillet.Radius = 3

doc.recompute()
